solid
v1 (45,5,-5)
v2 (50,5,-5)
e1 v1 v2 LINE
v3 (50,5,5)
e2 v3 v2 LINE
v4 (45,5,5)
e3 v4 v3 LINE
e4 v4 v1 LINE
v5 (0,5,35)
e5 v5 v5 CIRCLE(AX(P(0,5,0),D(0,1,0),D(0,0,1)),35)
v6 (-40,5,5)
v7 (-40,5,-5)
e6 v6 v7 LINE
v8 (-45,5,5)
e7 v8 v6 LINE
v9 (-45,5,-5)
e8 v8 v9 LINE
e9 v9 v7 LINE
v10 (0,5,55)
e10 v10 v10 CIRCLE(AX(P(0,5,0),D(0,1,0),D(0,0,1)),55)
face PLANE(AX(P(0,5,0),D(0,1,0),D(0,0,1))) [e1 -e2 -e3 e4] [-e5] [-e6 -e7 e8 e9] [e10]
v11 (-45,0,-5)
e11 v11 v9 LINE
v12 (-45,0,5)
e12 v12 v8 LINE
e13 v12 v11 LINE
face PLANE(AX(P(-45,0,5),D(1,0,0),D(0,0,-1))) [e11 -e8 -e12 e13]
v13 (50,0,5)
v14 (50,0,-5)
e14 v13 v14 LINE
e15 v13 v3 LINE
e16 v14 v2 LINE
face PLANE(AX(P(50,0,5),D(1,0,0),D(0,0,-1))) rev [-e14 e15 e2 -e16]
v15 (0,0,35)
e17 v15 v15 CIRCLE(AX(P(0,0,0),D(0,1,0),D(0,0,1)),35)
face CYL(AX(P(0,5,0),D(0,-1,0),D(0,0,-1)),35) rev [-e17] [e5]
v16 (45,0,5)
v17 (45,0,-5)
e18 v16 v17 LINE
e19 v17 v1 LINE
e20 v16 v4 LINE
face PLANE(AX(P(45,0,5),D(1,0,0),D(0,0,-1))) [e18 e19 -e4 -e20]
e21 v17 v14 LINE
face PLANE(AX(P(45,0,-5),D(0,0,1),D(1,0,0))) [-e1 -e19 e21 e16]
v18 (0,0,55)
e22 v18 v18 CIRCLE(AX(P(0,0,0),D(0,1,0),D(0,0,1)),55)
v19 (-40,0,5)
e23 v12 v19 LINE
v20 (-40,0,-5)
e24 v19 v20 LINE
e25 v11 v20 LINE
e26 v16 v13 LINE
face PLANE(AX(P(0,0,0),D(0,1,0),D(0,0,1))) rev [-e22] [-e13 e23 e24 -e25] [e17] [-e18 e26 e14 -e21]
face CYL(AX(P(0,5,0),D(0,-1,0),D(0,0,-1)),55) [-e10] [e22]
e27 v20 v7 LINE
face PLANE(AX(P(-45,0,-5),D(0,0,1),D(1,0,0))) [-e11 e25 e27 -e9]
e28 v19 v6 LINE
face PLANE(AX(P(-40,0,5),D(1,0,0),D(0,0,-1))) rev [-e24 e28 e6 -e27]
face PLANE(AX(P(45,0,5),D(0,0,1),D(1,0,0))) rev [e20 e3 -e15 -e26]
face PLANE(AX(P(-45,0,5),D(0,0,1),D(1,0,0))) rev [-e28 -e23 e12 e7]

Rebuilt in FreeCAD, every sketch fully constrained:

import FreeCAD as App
import Part
import Sketcher
Q = App.Units.Quantity

doc = App.newDocument("Part")
body = doc.addObject("PartDesign::Body", "Body")

# Sketch on XZ plane
sketch1 = doc.addObject("Sketcher::SketchObject", "Sketch")
body.addObject(sketch1)
sketch1.AttachmentSupport = (doc.XZ_Plane, [""])
sketch1.MapMode = "FlatFace"
sketch1.addGeometry([
    Part.Circle(App.Vector(0, 0, 0), App.Vector(0, 0, 1), 55),
    Part.Circle(App.Vector(0, 0, 0), App.Vector(0, 0, 1), 35),
], False)
sketch1.addConstraint([
    Sketcher.Constraint("Coincident", 0, 3, -1, 1),
    Sketcher.Constraint("Coincident", 1, 3, -1, 1),
    Sketcher.Constraint("Diameter", 0, Q("110 mm")),
    Sketcher.Constraint("Diameter", 1, Q("70 mm")),
])
pad1 = doc.addObject("PartDesign::Pad", "Pad")
body.addObject(pad1)
pad1.Profile = sketch1
pad1.Length = 5
pad1.Reversed = True

# Sketch on XZ plane
sketch2 = doc.addObject("Sketcher::SketchObject", "Sketch001")
body.addObject(sketch2)
sketch2.AttachmentSupport = (doc.XZ_Plane, [""])
sketch2.MapMode = "FlatFace"
sketch2.AttachmentOffset = App.Placement(App.Vector(0, 0, -5), App.Rotation())
sketch2.addGeometry([
    Part.LineSegment(App.Vector(-45, -5, 0), App.Vector(-45, 5, 0)),  # 0
    Part.LineSegment(App.Vector(-45, 5, 0), App.Vector(-40, 5, 0)),  # 1
    Part.LineSegment(App.Vector(-40, 5, 0), App.Vector(-40, -5, 0)),  # 2
    Part.LineSegment(App.Vector(-40, -5, 0), App.Vector(-45, -5, 0)),  # 3
    Part.LineSegment(App.Vector(45, -5, 0), App.Vector(45, 5, 0)),  # 4
    Part.LineSegment(App.Vector(45, 5, 0), App.Vector(50, 5, 0)),  # 5
    Part.LineSegment(App.Vector(50, 5, 0), App.Vector(50, -5, 0)),  # 6
    Part.LineSegment(App.Vector(50, -5, 0), App.Vector(45, -5, 0)),  # 7
], False)
sketch2.addConstraint([
    Sketcher.Constraint("Coincident", 0, 2, 1, 1),
    Sketcher.Constraint("Coincident", 1, 2, 2, 1),
    Sketcher.Constraint("Coincident", 2, 2, 3, 1),
    Sketcher.Constraint("Coincident", 3, 2, 0, 1),
    Sketcher.Constraint("Coincident", 4, 2, 5, 1),
    Sketcher.Constraint("Coincident", 5, 2, 6, 1),
    Sketcher.Constraint("Coincident", 6, 2, 7, 1),
    Sketcher.Constraint("Coincident", 7, 2, 4, 1),
    Sketcher.Constraint("Vertical", 0),
    Sketcher.Constraint("Horizontal", 1),
    Sketcher.Constraint("Vertical", 2),
    Sketcher.Constraint("Horizontal", 3),
    Sketcher.Constraint("Vertical", 4),
    Sketcher.Constraint("Horizontal", 5),
    Sketcher.Constraint("Vertical", 6),
    Sketcher.Constraint("Horizontal", 7),
    Sketcher.Constraint("Symmetric", 3, 2, 4, 2, -1, 1),
    Sketcher.Constraint("Horizontal", 1, 2, 4, 2),
    Sketcher.Constraint("Horizontal", 3, 2, 6, 2),
    Sketcher.Constraint("Equal", 3, 5),
    Sketcher.Constraint("DistanceX", 1, 1, 1, 2, Q("5 mm")),
    Sketcher.Constraint("DistanceY", 0, 1, 0, 2, Q("10 mm")),
    Sketcher.Constraint("DistanceX", 0, 2, -1, 1, Q("45 mm")),
])
pocket1 = doc.addObject("PartDesign::Pocket", "Pocket")
body.addObject(pocket1)
pocket1.Profile = sketch2
pocket1.Length = 5
pocket1.Reversed = True

doc.recompute()
